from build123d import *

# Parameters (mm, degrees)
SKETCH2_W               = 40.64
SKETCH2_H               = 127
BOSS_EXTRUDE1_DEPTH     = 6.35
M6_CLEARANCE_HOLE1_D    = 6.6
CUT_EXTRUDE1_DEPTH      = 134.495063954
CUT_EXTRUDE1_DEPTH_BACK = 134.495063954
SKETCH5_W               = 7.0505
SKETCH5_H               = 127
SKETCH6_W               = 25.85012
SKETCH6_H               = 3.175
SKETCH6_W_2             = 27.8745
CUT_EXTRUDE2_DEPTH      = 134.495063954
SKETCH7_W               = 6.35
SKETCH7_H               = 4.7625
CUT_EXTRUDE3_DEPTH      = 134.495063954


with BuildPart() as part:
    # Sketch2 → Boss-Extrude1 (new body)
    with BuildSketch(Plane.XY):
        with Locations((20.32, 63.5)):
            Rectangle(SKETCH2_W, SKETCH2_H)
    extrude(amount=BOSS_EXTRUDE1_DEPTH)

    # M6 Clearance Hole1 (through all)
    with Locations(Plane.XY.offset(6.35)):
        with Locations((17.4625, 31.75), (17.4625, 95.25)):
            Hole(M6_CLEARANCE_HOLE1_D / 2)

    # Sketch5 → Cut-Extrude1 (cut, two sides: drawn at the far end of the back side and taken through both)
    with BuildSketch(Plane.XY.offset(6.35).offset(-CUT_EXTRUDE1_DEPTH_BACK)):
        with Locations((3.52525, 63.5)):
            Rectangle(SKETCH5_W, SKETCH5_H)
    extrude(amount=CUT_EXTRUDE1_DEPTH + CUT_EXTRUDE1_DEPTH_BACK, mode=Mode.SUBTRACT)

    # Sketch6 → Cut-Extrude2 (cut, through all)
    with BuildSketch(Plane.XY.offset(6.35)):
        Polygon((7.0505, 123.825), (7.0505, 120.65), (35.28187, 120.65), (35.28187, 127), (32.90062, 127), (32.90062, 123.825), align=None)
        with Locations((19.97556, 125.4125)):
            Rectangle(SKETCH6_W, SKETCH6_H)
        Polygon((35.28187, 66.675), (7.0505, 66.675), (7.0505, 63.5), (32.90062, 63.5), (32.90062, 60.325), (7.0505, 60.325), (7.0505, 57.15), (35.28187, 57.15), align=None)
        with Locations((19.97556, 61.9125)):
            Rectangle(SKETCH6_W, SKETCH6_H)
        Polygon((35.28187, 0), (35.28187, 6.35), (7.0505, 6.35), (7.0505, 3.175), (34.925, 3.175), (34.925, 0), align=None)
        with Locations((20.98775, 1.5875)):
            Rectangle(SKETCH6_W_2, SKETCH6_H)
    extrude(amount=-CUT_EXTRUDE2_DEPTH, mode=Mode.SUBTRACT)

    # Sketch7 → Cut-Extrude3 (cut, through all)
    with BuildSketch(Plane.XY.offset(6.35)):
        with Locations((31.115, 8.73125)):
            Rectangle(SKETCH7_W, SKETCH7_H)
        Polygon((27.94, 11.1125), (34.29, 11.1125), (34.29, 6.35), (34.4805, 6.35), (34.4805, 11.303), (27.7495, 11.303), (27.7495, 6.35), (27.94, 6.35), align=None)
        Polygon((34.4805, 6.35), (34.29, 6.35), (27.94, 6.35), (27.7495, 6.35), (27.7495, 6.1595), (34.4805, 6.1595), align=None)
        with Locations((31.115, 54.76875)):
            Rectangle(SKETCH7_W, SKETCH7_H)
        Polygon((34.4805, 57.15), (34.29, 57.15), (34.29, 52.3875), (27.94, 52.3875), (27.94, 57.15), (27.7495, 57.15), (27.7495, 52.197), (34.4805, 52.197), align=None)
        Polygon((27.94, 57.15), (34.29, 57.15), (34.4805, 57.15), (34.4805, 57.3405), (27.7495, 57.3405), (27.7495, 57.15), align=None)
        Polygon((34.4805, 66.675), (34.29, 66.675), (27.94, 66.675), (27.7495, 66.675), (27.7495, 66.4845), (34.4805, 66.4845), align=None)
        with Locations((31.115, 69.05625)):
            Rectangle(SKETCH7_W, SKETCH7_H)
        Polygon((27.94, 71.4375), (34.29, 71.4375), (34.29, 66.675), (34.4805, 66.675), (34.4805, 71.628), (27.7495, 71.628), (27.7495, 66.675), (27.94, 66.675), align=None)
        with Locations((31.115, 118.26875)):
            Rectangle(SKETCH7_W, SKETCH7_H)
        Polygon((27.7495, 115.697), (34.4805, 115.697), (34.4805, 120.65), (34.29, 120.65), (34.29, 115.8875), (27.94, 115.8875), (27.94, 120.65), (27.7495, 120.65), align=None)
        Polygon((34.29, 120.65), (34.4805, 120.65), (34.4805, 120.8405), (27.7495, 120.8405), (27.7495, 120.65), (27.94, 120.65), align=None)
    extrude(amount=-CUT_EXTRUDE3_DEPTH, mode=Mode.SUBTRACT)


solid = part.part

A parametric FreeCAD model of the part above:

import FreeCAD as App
import Part
import Sketcher
from FreeCAD import Vector
Q = App.Units.Quantity


def add_polygon(sketch, points):
    """Adds a closed chain of lines whose ends are joined by coincident constraints."""
    first, n = sketch.GeometryCount, len(points)
    for a, b in zip(points, points[1:] + points[:1]):
        sketch.addGeometry(Part.LineSegment(App.Vector(*a, 0), App.Vector(*b, 0)), False)
    for i in range(n):
        sketch.addConstraint(Sketcher.Constraint("Coincident", first + i, 2, first + (i + 1) % n, 1))

doc = App.newDocument("Part")
body = doc.addObject("PartDesign::Body", "Body")

sketch1 = doc.addObject("Sketcher::SketchObject", "Sketch")
body.addObject(sketch1)
sketch1.AttachmentSupport = (doc.XY_Plane, [""])
sketch1.MapMode = "FlatFace"
add_polygon(sketch1, [(0, 127), (0, 0), (41, 0), (41, 127)])
sketch1.addConstraint([
    Sketcher.Constraint("Vertical", 0),
    Sketcher.Constraint("Horizontal", 1),
    Sketcher.Constraint("Vertical", 2),
    Sketcher.Constraint("Horizontal", 3),
    Sketcher.Constraint("Coincident", 0, 2, -1, 1),
    Sketcher.Constraint("DistanceY", 0, 2, 0, 1, Q("5 in")),
    Sketcher.Constraint("DistanceX", 1, 1, 1, 2, Q("1.6 in")),
])
pad1 = doc.addObject("PartDesign::Pad", "Pad")
body.addObject(pad1)
pad1.Profile = sketch1
pad1.Length = Q("0.25 in")

sketch2 = doc.addObject("Sketcher::SketchObject", "Sketch001")
body.addObject(sketch2)
sketch2.AttachmentSupport = (doc.XY_Plane, [""])
sketch2.MapMode = "FlatFace"
sketch2.AttachmentOffset = App.Placement(Vector(0, 0, 0.25 * 25.4), App.Rotation())
sketch2.addGeometry([
    Part.Circle(Vector(17.5, 31.8, 0), Vector(0, 0, 1), 3.3),
    Part.Circle(Vector(17.5, 95.2, 0), Vector(0, 0, 1), 3.3),
], False)
sketch2.addConstraint([
    Sketcher.Constraint("Equal", 0, 1),
    Sketcher.Constraint("Vertical", 0, 3, 1, 3),
    Sketcher.Constraint("DistanceY", 0, 3, 1, 3, Q("2.5 in")),
    Sketcher.Constraint("Diameter", 0, 6.6),
    Sketcher.Constraint("DistanceY", -1, 1, 0, 3, Q("1.25 in")),
    Sketcher.Constraint("DistanceX", -1, 1, 0, 3, Q("0.6875 in")),
])
doc.recompute()
hole = doc.addObject("PartDesign::Hole", "Hole")
body.addObject(hole)
hole.Profile = sketch2
hole.ThreadType = "None"
hole.Diameter = 6.6
hole.DepthType = "ThroughAll"

sketch3 = doc.addObject("Sketcher::SketchObject", "Sketch002")
body.addObject(sketch3)
sketch3.AttachmentSupport = (doc.XY_Plane, [""])
sketch3.MapMode = "FlatFace"
sketch3.AttachmentOffset = App.Placement(Vector(0, 0, 0.25 * 25.4), App.Rotation())
add_polygon(sketch3, [(0, 127), (0, 0), (7, 0), (7, 127)])
sketch3.addConstraint([
    Sketcher.Constraint("Vertical", 0),
    Sketcher.Constraint("Horizontal", 1),
    Sketcher.Constraint("Vertical", 2),
    Sketcher.Constraint("Horizontal", 3),
    Sketcher.Constraint("Coincident", 0, 2, -1, 1),
    Sketcher.Constraint("DistanceY", 0, 2, 0, 1, Q("5 in")),
    Sketcher.Constraint("DistanceX", 1, 1, 1, 2, 7.0505),
])
pocket1 = doc.addObject("PartDesign::Pocket", "Pocket")
body.addObject(pocket1)
pocket1.Profile = sketch3
pocket1.Type = "ThroughAll"
pocket1.Midplane = True

sketch4 = doc.addObject("Sketcher::SketchObject", "Sketch003")
body.addObject(sketch4)
sketch4.AttachmentSupport = (doc.XY_Plane, [""])
sketch4.MapMode = "FlatFace"
sketch4.AttachmentOffset = App.Placement(Vector(0, 0, 0.25 * 25.4), App.Rotation())
add_polygon(sketch4, [(7, 121), (35, 121), (35, 127), (7, 127)])
add_polygon(sketch4, [(35, 67), (7, 67), (7, 57), (35, 57)])
add_polygon(sketch4, [(35, 0), (35, 6), (7, 6), (7, 0)])
sketch4.addConstraint([
    Sketcher.Constraint("Horizontal", 0),
    Sketcher.Constraint("Vertical", 1),
    Sketcher.Constraint("Horizontal", 2),
    Sketcher.Constraint("Vertical", 3),
    Sketcher.Constraint("Horizontal", 4),
    Sketcher.Constraint("Vertical", 5),
    Sketcher.Constraint("Horizontal", 6),
    Sketcher.Constraint("Vertical", 7),
    Sketcher.Constraint("Vertical", 8),
    Sketcher.Constraint("Horizontal", 9),
    Sketcher.Constraint("Vertical", 10),
    Sketcher.Constraint("Horizontal", 11),
    Sketcher.Constraint("PointOnObject", 10, 2, -1),
    Sketcher.Constraint("Vertical", 3, 2, 4, 2),
    Sketcher.Constraint("Vertical", 1, 2, 6, 2),
    Sketcher.Constraint("Vertical", 7, 2, 8, 2),
    Sketcher.Constraint("Vertical", 5, 2, 9, 2),
    Sketcher.Constraint("Equal", 3, 8),
    Sketcher.Constraint("DistanceY", -1, 1, 1, 2, Q("5 in")),
    Sketcher.Constraint("DistanceY", 8, 2, 6, 2, Q("2 in")),
    Sketcher.Constraint("DistanceY", 1, 1, 1, 2, Q("0.25 in")),
    Sketcher.Constraint("DistanceY", 5, 2, 5, 1, Q("0.375 in")),
    Sketcher.Constraint("DistanceX", 0, 1, 0, 2, 28.23137),
    Sketcher.Constraint("DistanceX", -1, 1, 2, 2, 7.0505),
])
pocket2 = doc.addObject("PartDesign::Pocket", "Pocket001")
body.addObject(pocket2)
pocket2.Profile = sketch4
pocket2.Type = "ThroughAll"

sketch5 = doc.addObject("Sketcher::SketchObject", "Sketch004")
body.addObject(sketch5)
sketch5.AttachmentSupport = (doc.XY_Plane, [""])
sketch5.MapMode = "FlatFace"
sketch5.AttachmentOffset = App.Placement(Vector(0, 0, 0.25 * 25.4), App.Rotation())
add_polygon(sketch5, [(34, 11), (28, 11), (28, 6), (34, 6)])
add_polygon(sketch5, [(28, 52), (34, 52), (34, 57), (28, 57)])
add_polygon(sketch5, [(28, 66), (34, 66), (34, 72), (28, 72)])
add_polygon(sketch5, [(28, 116), (34, 116), (34, 121), (28, 121)])
sketch5.addConstraint([
    Sketcher.Constraint("Horizontal", 0),
    Sketcher.Constraint("Vertical", 1),
    Sketcher.Constraint("Horizontal", 2),
    Sketcher.Constraint("Vertical", 3),
    Sketcher.Constraint("Horizontal", 4),
    Sketcher.Constraint("Vertical", 5),
    Sketcher.Constraint("Horizontal", 6),
    Sketcher.Constraint("Vertical", 7),
    Sketcher.Constraint("Horizontal", 8),
    Sketcher.Constraint("Vertical", 9),
    Sketcher.Constraint("Horizontal", 10),
    Sketcher.Constraint("Vertical", 11),
    Sketcher.Constraint("Horizontal", 12),
    Sketcher.Constraint("Vertical", 13),
    Sketcher.Constraint("Horizontal", 14),
    Sketcher.Constraint("Vertical", 15),
    Sketcher.Constraint("Vertical", 3, 2, 4, 2),
    Sketcher.Constraint("Vertical", 1, 2, 6, 2),
    Sketcher.Constraint("Vertical", 5, 2, 8, 2),
    Sketcher.Constraint("Vertical", 7, 2, 10, 2),
    Sketcher.Constraint("Vertical", 9, 2, 12, 2),
    Sketcher.Constraint("Vertical", 11, 2, 14, 2),
    Sketcher.Constraint("Equal", 3, 5),
    Sketcher.Constraint("Equal", 7, 9),
    Sketcher.Constraint("Equal", 11, 13),
    Sketcher.Constraint("DistanceX", 0, 2, 0, 1, Q("0.265 in")),
    Sketcher.Constraint("DistanceY", -1, 1, 9, 2, Q("2.82 in")),
    Sketcher.Constraint("DistanceY", 3, 2, 4, 2, Q("1.61 in")),
    Sketcher.Constraint("DistanceY", 5, 2, 8, 2, Q("0.36 in")),
    Sketcher.Constraint("DistanceY", 8, 2, 13, 2, Q("2.14 in")),
    Sketcher.Constraint("DistanceY", 1, 2, 1, 1, Q("0.2025 in")),
    Sketcher.Constraint("DistanceX", -1, 1, 0, 2, Q("1.0925 in")),
])
pocket3 = doc.addObject("PartDesign::Pocket", "Pocket002")
body.addObject(pocket3)
pocket3.Profile = sketch5
pocket3.Type = "ThroughAll"

doc.recompute()
